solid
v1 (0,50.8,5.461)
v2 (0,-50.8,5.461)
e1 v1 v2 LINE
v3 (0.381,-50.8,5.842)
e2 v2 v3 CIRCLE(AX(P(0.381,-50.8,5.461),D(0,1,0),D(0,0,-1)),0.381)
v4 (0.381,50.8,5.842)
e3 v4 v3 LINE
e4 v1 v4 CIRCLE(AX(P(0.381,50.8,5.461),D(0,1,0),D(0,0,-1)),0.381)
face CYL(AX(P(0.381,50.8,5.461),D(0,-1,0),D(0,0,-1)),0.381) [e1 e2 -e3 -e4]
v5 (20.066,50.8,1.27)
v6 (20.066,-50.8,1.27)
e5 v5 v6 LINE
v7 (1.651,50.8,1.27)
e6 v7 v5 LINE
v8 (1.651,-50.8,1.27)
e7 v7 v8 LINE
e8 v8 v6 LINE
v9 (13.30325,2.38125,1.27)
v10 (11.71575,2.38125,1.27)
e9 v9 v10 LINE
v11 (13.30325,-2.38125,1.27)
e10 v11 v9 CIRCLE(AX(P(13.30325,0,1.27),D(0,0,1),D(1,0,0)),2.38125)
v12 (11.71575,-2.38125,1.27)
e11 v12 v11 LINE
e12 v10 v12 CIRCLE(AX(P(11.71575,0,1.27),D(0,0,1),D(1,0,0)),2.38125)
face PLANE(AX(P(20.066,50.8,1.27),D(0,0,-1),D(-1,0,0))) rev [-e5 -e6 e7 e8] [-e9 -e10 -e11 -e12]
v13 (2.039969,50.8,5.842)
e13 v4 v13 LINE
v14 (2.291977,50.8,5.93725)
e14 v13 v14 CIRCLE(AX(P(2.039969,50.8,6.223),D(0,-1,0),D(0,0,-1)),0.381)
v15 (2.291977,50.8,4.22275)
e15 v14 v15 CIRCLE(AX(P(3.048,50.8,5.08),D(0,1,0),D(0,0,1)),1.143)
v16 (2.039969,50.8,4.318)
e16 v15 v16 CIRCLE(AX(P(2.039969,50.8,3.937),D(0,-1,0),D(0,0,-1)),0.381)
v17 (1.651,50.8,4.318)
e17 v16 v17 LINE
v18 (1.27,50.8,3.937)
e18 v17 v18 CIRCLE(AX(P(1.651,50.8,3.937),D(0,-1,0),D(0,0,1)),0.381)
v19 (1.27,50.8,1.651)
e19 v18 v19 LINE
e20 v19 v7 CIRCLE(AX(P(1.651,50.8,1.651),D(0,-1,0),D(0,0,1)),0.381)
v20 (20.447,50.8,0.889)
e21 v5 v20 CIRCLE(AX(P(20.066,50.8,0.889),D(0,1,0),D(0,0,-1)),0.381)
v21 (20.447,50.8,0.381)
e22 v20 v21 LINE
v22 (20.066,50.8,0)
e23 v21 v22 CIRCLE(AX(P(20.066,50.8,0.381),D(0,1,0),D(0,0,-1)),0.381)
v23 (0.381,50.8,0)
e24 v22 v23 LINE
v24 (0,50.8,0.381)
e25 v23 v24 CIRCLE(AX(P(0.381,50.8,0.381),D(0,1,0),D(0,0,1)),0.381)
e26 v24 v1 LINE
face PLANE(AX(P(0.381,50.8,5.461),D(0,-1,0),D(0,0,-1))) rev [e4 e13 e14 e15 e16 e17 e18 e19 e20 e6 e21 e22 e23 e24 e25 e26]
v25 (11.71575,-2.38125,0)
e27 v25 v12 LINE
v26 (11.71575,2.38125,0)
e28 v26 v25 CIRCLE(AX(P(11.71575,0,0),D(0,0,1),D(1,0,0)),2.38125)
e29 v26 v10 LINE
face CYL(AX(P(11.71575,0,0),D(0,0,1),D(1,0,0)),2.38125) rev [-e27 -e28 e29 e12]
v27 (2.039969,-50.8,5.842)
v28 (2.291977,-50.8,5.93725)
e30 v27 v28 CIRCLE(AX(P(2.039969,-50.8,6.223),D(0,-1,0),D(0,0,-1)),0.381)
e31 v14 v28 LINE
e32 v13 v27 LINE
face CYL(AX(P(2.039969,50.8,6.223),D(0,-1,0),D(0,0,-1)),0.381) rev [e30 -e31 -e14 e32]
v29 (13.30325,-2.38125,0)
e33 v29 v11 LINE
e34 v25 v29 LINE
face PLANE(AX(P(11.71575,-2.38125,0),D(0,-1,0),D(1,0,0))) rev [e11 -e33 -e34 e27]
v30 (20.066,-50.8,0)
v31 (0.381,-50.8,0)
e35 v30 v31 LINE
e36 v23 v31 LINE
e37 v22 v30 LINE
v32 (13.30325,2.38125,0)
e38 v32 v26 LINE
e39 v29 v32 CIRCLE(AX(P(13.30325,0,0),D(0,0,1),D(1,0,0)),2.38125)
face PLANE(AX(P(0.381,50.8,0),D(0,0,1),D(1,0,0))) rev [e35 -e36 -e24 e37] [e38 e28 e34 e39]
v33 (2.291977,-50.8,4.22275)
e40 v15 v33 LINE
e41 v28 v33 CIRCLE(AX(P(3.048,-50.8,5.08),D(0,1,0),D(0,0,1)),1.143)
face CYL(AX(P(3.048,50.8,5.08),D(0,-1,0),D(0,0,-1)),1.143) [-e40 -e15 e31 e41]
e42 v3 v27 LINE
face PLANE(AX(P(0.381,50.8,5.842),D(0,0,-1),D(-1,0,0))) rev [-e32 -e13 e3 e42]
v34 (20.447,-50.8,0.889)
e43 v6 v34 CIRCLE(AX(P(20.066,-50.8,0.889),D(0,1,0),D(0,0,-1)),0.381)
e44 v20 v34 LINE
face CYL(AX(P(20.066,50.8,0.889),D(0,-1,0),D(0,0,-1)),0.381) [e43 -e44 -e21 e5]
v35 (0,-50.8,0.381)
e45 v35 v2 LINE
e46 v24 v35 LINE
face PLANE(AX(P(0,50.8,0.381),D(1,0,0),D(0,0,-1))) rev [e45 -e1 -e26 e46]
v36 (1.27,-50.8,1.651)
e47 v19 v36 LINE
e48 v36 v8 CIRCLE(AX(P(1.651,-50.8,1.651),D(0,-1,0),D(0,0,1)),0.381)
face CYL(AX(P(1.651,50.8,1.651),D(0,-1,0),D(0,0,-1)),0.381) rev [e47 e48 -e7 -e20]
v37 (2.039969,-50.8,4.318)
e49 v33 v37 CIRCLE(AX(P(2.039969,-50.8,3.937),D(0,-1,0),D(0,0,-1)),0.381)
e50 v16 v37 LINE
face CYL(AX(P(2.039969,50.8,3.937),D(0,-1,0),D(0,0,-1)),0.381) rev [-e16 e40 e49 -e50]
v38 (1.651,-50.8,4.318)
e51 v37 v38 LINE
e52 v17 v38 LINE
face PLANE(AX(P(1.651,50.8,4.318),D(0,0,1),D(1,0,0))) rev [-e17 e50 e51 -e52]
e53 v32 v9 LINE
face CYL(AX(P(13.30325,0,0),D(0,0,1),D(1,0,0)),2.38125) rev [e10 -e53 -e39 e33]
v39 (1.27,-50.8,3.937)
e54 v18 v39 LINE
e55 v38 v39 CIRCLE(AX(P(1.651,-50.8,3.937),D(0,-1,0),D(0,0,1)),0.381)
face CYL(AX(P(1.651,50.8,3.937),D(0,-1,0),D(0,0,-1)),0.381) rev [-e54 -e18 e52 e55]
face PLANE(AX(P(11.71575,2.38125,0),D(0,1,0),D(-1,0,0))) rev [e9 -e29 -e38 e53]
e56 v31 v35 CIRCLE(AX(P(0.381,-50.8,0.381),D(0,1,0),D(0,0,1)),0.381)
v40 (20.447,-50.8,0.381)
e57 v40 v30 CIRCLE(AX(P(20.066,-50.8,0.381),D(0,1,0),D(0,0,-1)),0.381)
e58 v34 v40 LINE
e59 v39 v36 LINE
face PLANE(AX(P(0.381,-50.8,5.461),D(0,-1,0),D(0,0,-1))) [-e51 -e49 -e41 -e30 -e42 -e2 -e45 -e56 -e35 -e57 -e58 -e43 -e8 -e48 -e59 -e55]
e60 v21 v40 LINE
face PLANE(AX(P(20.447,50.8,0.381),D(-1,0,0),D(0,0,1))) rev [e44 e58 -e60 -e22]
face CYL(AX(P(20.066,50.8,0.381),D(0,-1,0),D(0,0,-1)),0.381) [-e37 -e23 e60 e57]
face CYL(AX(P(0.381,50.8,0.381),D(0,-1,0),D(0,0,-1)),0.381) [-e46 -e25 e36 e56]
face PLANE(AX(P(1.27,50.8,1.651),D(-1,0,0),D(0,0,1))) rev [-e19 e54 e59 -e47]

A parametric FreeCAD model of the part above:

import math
import FreeCAD as App
import Part
import Sketcher
Q = App.Units.Quantity

doc = App.newDocument("Part")
body = doc.addObject("PartDesign::Body", "Body")

# Sketch on XZ plane
sketch1 = body.newObject("Sketcher::SketchObject", "Sketch")
sketch1.AttachmentSupport = (doc.getObject("XZ_Plane"), [""])
sketch1.MapMode = "FlatFace"
sketch1.addGeometry([
    Part.LineSegment(App.Vector(20.07, 0, 0), App.Vector(0.38, 0, 0)),  # 0
    Part.ArcOfCircle(Part.Circle(App.Vector(0.38, 0.38, 0), App.Vector(0, 0, 1), 0.38), math.radians(180), math.radians(270)),  # 1
    Part.LineSegment(App.Vector(0, 0.38, 0), App.Vector(0, 5.46, 0)),  # 2
    Part.ArcOfCircle(Part.Circle(App.Vector(0.38, 5.46, 0), App.Vector(0, 0, 1), 0.38), math.radians(90), math.radians(180)),  # 3
    Part.LineSegment(App.Vector(0.38, 5.84, 0), App.Vector(2.04, 5.84, 0)),  # 4
    Part.ArcOfCircle(Part.Circle(App.Vector(2.04, 6.22, 0), App.Vector(0, 0, 1), 0.38), math.radians(-90), math.radians(-49)),  # 5
    Part.ArcOfCircle(Part.Circle(App.Vector(3.05, 5.08, 0), App.Vector(0, 0, 1), 1.14), math.radians(-131), math.radians(131)),  # 6
    Part.ArcOfCircle(Part.Circle(App.Vector(2.04, 3.94, 0), App.Vector(0, 0, 1), 0.38), math.radians(49), math.radians(90)),  # 7
    Part.LineSegment(App.Vector(2.04, 4.32, 0), App.Vector(1.65, 4.32, 0)),  # 8
    Part.ArcOfCircle(Part.Circle(App.Vector(1.65, 3.94, 0), App.Vector(0, 0, 1), 0.38), math.radians(90), math.radians(180)),  # 9
    Part.LineSegment(App.Vector(1.27, 3.94, 0), App.Vector(1.27, 1.65, 0)),  # 10
    Part.ArcOfCircle(Part.Circle(App.Vector(1.65, 1.65, 0), App.Vector(0, 0, 1), 0.38), math.radians(180), math.radians(270)),  # 11
    Part.LineSegment(App.Vector(1.65, 1.27, 0), App.Vector(20.07, 1.27, 0)),  # 12
    Part.ArcOfCircle(Part.Circle(App.Vector(20.07, 0.89, 0), App.Vector(0, 0, 1), 0.38), math.radians(0), math.radians(90)),  # 13
    Part.LineSegment(App.Vector(20.45, 0.89, 0), App.Vector(20.45, 0.38, 0)),  # 14
    Part.ArcOfCircle(Part.Circle(App.Vector(20.07, 0.38, 0), App.Vector(0, 0, 1), 0.38), math.radians(-90), math.radians(0)),  # 15
], False)
sketch1.addConstraint([
    Sketcher.Constraint("Tangent", 0, 2, 1, 2),
    Sketcher.Constraint("Tangent", 1, 1, 2, 1),
    Sketcher.Constraint("Tangent", 2, 2, 3, 2),
    Sketcher.Constraint("Tangent", 3, 1, 4, 1),
    Sketcher.Constraint("Tangent", 4, 2, 5, 1),
    Sketcher.Constraint("Tangent", 5, 2, 6, 2),
    Sketcher.Constraint("Tangent", 6, 1, 7, 1),
    Sketcher.Constraint("Tangent", 7, 2, 8, 1),
    Sketcher.Constraint("Tangent", 8, 2, 9, 1),
    Sketcher.Constraint("Tangent", 9, 2, 10, 1),
    Sketcher.Constraint("Tangent", 10, 2, 11, 1),
    Sketcher.Constraint("Tangent", 11, 2, 12, 1),
    Sketcher.Constraint("Tangent", 12, 2, 13, 2),
    Sketcher.Constraint("Tangent", 13, 1, 14, 1),
    Sketcher.Constraint("Tangent", 14, 2, 15, 2),
    Sketcher.Constraint("Tangent", 15, 1, 0, 1),
    Sketcher.Constraint("Horizontal", 0),
    Sketcher.Constraint("Vertical", 2),
    Sketcher.Constraint("Horizontal", 4),
    Sketcher.Constraint("Horizontal", 8),
    Sketcher.Constraint("Vertical", 10),
    Sketcher.Constraint("Horizontal", 12),
    Sketcher.Constraint("Vertical", 14),
    Sketcher.Constraint("Equal", 1, 3),
    Sketcher.Constraint("Equal", 3, 5),
    Sketcher.Constraint("Equal", 5, 7),
    Sketcher.Constraint("Equal", 7, 9),
    Sketcher.Constraint("Equal", 9, 11),
    Sketcher.Constraint("Equal", 11, 13),
    Sketcher.Constraint("Equal", 13, 15),
    Sketcher.Constraint("PointOnObject", 0, 2, -1),
    Sketcher.Constraint("PointOnObject", 1, 1, -2),
    Sketcher.Constraint("Vertical", 5, 3, 7, 3),
    Sketcher.Constraint("DistanceY", 2, 1, 2, 2, Q("0.2 in")),
    Sketcher.Constraint("Radius", 1, Q("0.015 in")),
    Sketcher.Constraint("Radius", 6, Q("0.045 in")),
    Sketcher.Constraint("DistanceY", 10, 2, 10, 1, Q("0.09 in")),
    Sketcher.Constraint("DistanceY", 14, 2, 14, 1, Q("0.02 in")),
    Sketcher.Constraint("DistanceX", 0, 2, 0, 1, Q("0.775 in")),
    Sketcher.Constraint("DistanceX", 12, 1, 12, 2, Q("0.725 in")),
    Sketcher.Constraint("DistanceX", -1, 1, 6, 3, Q("0.12 in")),
])
pad1 = body.newObject("PartDesign::Pad", "Pad")
pad1.Profile = sketch1
pad1.Length = Q("4 in")
pad1.Midplane = True

# Sketch on XY plane
sketch2 = body.newObject("Sketcher::SketchObject", "Sketch001")
sketch2.AttachmentSupport = (doc.getObject("XY_Plane"), [""])
sketch2.MapMode = "FlatFace"
sketch2.AttachmentOffset = App.Placement(App.Vector(0, 0, 0.05 * 25.4), App.Rotation())
sketch2.addGeometry([
    Part.LineSegment(App.Vector(13.3, 2.4, 0), App.Vector(11.7, 2.4, 0)),
    Part.ArcOfCircle(Part.Circle(App.Vector(11.7, 0, 0), App.Vector(0, 0, 1), 2.4), math.radians(90), math.radians(270)),
    Part.LineSegment(App.Vector(11.7, -2.4, 0), App.Vector(13.3, -2.4, 0)),
    Part.ArcOfCircle(Part.Circle(App.Vector(13.3, 0, 0), App.Vector(0, 0, 1), 2.4), math.radians(-90), math.radians(90)),
], False)
sketch2.addConstraint([
    Sketcher.Constraint("Tangent", 0, 2, 1, 1),
    Sketcher.Constraint("Tangent", 1, 2, 2, 1),
    Sketcher.Constraint("Tangent", 2, 2, 3, 1),
    Sketcher.Constraint("Tangent", 3, 2, 0, 1),
    Sketcher.Constraint("Horizontal", 0),
    Sketcher.Constraint("Horizontal", 2),
    Sketcher.Constraint("PointOnObject", 1, 3, -1),
    Sketcher.Constraint("Radius", 1, Q("0.09375 in")),
    Sketcher.Constraint("DistanceX", 0, 2, 0, 1, Q("0.0625 in")),
    Sketcher.Constraint("DistanceX", -1, 1, 1, 3, 11.71575),
])
pocket1 = body.newObject("PartDesign::Pocket", "Pocket")
pocket1.Profile = sketch2
pocket1.Type = "ThroughAll"

doc.recompute()
